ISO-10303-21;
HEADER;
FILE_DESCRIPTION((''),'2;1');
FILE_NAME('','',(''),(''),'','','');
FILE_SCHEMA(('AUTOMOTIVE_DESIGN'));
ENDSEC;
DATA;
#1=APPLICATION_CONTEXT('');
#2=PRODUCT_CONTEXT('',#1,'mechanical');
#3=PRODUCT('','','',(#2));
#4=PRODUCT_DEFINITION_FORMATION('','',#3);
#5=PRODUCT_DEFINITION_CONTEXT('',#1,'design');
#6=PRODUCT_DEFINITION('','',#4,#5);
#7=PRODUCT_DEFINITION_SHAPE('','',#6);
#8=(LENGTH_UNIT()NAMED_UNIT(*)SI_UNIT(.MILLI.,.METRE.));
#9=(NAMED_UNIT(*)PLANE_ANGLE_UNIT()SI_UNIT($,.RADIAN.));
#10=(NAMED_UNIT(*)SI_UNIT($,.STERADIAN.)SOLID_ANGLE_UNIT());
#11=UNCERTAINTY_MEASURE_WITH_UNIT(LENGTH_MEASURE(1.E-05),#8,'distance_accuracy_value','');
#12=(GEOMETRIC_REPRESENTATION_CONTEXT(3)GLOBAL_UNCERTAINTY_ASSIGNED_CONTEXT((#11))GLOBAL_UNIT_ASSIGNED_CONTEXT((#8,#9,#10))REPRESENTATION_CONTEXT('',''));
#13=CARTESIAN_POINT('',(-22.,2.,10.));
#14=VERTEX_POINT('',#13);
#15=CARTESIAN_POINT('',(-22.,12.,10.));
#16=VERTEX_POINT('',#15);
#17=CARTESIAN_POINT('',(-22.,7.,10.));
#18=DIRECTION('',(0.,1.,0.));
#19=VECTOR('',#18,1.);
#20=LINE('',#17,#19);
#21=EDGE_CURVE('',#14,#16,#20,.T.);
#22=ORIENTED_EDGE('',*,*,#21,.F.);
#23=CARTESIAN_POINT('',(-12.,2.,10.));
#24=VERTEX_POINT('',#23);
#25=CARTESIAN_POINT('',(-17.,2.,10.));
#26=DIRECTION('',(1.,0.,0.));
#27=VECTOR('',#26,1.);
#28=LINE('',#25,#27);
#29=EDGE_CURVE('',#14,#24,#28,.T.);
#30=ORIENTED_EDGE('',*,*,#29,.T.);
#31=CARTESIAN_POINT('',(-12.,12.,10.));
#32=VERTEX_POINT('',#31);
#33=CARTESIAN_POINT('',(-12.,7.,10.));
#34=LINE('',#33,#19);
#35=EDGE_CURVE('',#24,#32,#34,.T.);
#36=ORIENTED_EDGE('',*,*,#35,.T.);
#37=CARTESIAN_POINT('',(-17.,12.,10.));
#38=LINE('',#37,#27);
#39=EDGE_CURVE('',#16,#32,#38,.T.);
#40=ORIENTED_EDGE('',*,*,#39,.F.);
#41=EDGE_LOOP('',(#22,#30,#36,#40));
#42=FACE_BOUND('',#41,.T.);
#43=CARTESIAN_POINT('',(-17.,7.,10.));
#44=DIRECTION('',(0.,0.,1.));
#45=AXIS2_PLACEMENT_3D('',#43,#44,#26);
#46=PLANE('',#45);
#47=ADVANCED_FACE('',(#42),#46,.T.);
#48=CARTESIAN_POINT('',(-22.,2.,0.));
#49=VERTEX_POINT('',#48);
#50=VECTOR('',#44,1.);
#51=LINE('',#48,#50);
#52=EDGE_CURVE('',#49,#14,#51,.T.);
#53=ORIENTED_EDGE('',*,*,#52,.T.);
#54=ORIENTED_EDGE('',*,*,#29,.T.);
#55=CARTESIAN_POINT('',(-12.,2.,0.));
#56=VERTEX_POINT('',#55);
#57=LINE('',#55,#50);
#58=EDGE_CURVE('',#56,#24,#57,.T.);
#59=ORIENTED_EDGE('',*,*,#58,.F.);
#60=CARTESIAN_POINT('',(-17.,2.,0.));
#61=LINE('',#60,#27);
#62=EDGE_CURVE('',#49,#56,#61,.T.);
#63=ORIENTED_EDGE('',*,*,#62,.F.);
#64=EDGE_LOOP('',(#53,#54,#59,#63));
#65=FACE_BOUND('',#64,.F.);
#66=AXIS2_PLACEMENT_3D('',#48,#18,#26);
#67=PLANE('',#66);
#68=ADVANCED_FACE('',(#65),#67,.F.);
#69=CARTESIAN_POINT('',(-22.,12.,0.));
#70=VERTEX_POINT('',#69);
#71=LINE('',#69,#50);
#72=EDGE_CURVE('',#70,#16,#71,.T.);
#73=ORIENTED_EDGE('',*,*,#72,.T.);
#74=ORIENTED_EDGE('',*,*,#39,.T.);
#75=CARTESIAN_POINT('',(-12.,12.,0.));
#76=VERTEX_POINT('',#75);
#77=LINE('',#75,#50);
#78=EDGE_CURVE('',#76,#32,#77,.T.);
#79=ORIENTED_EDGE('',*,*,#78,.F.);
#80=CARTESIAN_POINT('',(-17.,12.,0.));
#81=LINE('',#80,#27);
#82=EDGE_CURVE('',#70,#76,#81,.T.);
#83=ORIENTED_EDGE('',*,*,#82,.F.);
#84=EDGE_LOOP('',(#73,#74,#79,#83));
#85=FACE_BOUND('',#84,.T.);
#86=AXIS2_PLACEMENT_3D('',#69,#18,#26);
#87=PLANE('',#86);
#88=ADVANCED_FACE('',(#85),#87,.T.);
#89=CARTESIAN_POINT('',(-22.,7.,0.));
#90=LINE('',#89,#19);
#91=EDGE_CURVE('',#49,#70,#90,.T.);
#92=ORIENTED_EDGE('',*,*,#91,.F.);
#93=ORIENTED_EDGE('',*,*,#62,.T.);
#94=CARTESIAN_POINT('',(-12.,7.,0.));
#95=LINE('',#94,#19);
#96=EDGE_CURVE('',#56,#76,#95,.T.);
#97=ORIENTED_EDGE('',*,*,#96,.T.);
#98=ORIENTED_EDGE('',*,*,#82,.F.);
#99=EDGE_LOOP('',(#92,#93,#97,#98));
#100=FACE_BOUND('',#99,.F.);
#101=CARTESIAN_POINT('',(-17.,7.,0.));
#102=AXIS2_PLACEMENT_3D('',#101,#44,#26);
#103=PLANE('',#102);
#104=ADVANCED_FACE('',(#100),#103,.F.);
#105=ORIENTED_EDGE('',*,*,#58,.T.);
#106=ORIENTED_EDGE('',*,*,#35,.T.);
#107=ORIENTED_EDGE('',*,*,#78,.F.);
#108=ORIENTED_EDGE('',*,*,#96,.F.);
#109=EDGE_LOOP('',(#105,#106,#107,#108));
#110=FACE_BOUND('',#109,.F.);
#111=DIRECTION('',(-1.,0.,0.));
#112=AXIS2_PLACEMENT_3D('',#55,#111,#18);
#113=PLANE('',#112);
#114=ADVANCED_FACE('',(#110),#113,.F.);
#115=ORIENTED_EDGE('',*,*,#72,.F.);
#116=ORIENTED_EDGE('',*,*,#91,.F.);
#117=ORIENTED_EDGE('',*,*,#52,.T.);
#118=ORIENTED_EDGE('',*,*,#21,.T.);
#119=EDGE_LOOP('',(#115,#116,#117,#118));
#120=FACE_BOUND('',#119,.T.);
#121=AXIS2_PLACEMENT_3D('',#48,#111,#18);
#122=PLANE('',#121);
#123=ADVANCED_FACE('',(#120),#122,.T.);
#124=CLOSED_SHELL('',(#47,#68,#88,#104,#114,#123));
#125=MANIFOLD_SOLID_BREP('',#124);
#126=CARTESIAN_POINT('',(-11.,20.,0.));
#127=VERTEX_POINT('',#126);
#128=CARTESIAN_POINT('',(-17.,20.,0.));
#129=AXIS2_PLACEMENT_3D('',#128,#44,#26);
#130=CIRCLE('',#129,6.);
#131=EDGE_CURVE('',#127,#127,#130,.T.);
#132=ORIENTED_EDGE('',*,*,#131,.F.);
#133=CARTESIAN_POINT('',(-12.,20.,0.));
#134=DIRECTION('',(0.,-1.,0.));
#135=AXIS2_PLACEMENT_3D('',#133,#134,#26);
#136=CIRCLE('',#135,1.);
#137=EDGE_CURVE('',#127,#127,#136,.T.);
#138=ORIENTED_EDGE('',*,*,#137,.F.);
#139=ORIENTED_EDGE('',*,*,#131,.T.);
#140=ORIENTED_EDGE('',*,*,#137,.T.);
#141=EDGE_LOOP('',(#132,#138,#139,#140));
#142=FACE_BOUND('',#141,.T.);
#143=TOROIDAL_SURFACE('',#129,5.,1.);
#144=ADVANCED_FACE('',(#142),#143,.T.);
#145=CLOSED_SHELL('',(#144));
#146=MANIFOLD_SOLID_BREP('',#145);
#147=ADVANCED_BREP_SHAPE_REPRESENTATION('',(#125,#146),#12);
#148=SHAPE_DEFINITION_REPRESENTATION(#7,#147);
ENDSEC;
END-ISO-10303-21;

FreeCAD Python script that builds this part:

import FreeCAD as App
import Part
import Sketcher

V = App.Vector

doc = App.newDocument("Part")
body = doc.addObject("PartDesign::Body", "Body")

# Sketch on XY plane
sketch1 = body.newObject("Sketcher::SketchObject", "Sketch")
sketch1.AttachmentSupport = (doc.getObject("XY_Plane"), [""])
sketch1.MapMode = "FlatFace"
sketch1.addGeometry([
    Part.LineSegment(V(-22, 12, 0), V(-22, 2, 0)),
    Part.LineSegment(V(-22, 2, 0), V(-12, 2, 0)),
    Part.LineSegment(V(-12, 2, 0), V(-12, 12, 0)),
    Part.LineSegment(V(-12, 12, 0), V(-22, 12, 0)),
], False)
sketch1.addConstraint([
    Sketcher.Constraint("Coincident", 0, 2, 1, 1),
    Sketcher.Constraint("Coincident", 1, 2, 2, 1),
    Sketcher.Constraint("Coincident", 2, 2, 3, 1),
    Sketcher.Constraint("Coincident", 3, 2, 0, 1),
    Sketcher.Constraint("Vertical", 0),
    Sketcher.Constraint("Horizontal", 1),
    Sketcher.Constraint("Vertical", 2),
    Sketcher.Constraint("Horizontal", 3),
    Sketcher.Constraint("Equal", 3, 0),
    Sketcher.Constraint("DistanceX", 1, 1, 1, 2, 10.0),
    Sketcher.Constraint("DistanceX", 0, 2, -1, 1, 22.0),
    Sketcher.Constraint("DistanceY", -1, 1, 0, 2, 2.0),
])
pad1 = body.newObject("PartDesign::Pad", "Pad")
pad1.Profile = sketch1
pad1.Length = 10
body2 = doc.addObject("PartDesign::Body", "Body001")

# Sketch on XZ plane
sketch2 = body2.newObject("Sketcher::SketchObject", "Sketch001")
sketch2.AttachmentSupport = (doc.getObject("XZ_Plane001"), [""])
sketch2.MapMode = "FlatFace"
sketch2.AttachmentOffset = App.Placement(V(0, 0, -20), App.Rotation())
sketch2.addGeometry(Part.Circle(V(-12, 0, 0), V(0, 0, 1), 1), False)
sketch2.addGeometry(Part.LineSegment(V(-17, 0, 0), V(-17, 10, 0)), True)  # axis
sketch2.addConstraint([
    Sketcher.Constraint("Vertical", 1),
    Sketcher.Constraint("PointOnObject", 0, 3, -1),
    Sketcher.Constraint("PointOnObject", 1, 1, -1),
    Sketcher.Constraint("Diameter", 0, 2.0),
    Sketcher.Constraint("DistanceY", 1, 1, 1, 2, 10.0),
    Sketcher.Constraint("DistanceX", 0, 3, -1, 1, 12.0),
    Sketcher.Constraint("DistanceX", 1, 1, -1, 1, 17.0),
])
revolution = body2.newObject("PartDesign::Revolution", "Revolution")
revolution.Profile = sketch2
revolution.ReferenceAxis = (sketch2, ["Axis0"])
revolution.Angle = 360

doc.recompute()
